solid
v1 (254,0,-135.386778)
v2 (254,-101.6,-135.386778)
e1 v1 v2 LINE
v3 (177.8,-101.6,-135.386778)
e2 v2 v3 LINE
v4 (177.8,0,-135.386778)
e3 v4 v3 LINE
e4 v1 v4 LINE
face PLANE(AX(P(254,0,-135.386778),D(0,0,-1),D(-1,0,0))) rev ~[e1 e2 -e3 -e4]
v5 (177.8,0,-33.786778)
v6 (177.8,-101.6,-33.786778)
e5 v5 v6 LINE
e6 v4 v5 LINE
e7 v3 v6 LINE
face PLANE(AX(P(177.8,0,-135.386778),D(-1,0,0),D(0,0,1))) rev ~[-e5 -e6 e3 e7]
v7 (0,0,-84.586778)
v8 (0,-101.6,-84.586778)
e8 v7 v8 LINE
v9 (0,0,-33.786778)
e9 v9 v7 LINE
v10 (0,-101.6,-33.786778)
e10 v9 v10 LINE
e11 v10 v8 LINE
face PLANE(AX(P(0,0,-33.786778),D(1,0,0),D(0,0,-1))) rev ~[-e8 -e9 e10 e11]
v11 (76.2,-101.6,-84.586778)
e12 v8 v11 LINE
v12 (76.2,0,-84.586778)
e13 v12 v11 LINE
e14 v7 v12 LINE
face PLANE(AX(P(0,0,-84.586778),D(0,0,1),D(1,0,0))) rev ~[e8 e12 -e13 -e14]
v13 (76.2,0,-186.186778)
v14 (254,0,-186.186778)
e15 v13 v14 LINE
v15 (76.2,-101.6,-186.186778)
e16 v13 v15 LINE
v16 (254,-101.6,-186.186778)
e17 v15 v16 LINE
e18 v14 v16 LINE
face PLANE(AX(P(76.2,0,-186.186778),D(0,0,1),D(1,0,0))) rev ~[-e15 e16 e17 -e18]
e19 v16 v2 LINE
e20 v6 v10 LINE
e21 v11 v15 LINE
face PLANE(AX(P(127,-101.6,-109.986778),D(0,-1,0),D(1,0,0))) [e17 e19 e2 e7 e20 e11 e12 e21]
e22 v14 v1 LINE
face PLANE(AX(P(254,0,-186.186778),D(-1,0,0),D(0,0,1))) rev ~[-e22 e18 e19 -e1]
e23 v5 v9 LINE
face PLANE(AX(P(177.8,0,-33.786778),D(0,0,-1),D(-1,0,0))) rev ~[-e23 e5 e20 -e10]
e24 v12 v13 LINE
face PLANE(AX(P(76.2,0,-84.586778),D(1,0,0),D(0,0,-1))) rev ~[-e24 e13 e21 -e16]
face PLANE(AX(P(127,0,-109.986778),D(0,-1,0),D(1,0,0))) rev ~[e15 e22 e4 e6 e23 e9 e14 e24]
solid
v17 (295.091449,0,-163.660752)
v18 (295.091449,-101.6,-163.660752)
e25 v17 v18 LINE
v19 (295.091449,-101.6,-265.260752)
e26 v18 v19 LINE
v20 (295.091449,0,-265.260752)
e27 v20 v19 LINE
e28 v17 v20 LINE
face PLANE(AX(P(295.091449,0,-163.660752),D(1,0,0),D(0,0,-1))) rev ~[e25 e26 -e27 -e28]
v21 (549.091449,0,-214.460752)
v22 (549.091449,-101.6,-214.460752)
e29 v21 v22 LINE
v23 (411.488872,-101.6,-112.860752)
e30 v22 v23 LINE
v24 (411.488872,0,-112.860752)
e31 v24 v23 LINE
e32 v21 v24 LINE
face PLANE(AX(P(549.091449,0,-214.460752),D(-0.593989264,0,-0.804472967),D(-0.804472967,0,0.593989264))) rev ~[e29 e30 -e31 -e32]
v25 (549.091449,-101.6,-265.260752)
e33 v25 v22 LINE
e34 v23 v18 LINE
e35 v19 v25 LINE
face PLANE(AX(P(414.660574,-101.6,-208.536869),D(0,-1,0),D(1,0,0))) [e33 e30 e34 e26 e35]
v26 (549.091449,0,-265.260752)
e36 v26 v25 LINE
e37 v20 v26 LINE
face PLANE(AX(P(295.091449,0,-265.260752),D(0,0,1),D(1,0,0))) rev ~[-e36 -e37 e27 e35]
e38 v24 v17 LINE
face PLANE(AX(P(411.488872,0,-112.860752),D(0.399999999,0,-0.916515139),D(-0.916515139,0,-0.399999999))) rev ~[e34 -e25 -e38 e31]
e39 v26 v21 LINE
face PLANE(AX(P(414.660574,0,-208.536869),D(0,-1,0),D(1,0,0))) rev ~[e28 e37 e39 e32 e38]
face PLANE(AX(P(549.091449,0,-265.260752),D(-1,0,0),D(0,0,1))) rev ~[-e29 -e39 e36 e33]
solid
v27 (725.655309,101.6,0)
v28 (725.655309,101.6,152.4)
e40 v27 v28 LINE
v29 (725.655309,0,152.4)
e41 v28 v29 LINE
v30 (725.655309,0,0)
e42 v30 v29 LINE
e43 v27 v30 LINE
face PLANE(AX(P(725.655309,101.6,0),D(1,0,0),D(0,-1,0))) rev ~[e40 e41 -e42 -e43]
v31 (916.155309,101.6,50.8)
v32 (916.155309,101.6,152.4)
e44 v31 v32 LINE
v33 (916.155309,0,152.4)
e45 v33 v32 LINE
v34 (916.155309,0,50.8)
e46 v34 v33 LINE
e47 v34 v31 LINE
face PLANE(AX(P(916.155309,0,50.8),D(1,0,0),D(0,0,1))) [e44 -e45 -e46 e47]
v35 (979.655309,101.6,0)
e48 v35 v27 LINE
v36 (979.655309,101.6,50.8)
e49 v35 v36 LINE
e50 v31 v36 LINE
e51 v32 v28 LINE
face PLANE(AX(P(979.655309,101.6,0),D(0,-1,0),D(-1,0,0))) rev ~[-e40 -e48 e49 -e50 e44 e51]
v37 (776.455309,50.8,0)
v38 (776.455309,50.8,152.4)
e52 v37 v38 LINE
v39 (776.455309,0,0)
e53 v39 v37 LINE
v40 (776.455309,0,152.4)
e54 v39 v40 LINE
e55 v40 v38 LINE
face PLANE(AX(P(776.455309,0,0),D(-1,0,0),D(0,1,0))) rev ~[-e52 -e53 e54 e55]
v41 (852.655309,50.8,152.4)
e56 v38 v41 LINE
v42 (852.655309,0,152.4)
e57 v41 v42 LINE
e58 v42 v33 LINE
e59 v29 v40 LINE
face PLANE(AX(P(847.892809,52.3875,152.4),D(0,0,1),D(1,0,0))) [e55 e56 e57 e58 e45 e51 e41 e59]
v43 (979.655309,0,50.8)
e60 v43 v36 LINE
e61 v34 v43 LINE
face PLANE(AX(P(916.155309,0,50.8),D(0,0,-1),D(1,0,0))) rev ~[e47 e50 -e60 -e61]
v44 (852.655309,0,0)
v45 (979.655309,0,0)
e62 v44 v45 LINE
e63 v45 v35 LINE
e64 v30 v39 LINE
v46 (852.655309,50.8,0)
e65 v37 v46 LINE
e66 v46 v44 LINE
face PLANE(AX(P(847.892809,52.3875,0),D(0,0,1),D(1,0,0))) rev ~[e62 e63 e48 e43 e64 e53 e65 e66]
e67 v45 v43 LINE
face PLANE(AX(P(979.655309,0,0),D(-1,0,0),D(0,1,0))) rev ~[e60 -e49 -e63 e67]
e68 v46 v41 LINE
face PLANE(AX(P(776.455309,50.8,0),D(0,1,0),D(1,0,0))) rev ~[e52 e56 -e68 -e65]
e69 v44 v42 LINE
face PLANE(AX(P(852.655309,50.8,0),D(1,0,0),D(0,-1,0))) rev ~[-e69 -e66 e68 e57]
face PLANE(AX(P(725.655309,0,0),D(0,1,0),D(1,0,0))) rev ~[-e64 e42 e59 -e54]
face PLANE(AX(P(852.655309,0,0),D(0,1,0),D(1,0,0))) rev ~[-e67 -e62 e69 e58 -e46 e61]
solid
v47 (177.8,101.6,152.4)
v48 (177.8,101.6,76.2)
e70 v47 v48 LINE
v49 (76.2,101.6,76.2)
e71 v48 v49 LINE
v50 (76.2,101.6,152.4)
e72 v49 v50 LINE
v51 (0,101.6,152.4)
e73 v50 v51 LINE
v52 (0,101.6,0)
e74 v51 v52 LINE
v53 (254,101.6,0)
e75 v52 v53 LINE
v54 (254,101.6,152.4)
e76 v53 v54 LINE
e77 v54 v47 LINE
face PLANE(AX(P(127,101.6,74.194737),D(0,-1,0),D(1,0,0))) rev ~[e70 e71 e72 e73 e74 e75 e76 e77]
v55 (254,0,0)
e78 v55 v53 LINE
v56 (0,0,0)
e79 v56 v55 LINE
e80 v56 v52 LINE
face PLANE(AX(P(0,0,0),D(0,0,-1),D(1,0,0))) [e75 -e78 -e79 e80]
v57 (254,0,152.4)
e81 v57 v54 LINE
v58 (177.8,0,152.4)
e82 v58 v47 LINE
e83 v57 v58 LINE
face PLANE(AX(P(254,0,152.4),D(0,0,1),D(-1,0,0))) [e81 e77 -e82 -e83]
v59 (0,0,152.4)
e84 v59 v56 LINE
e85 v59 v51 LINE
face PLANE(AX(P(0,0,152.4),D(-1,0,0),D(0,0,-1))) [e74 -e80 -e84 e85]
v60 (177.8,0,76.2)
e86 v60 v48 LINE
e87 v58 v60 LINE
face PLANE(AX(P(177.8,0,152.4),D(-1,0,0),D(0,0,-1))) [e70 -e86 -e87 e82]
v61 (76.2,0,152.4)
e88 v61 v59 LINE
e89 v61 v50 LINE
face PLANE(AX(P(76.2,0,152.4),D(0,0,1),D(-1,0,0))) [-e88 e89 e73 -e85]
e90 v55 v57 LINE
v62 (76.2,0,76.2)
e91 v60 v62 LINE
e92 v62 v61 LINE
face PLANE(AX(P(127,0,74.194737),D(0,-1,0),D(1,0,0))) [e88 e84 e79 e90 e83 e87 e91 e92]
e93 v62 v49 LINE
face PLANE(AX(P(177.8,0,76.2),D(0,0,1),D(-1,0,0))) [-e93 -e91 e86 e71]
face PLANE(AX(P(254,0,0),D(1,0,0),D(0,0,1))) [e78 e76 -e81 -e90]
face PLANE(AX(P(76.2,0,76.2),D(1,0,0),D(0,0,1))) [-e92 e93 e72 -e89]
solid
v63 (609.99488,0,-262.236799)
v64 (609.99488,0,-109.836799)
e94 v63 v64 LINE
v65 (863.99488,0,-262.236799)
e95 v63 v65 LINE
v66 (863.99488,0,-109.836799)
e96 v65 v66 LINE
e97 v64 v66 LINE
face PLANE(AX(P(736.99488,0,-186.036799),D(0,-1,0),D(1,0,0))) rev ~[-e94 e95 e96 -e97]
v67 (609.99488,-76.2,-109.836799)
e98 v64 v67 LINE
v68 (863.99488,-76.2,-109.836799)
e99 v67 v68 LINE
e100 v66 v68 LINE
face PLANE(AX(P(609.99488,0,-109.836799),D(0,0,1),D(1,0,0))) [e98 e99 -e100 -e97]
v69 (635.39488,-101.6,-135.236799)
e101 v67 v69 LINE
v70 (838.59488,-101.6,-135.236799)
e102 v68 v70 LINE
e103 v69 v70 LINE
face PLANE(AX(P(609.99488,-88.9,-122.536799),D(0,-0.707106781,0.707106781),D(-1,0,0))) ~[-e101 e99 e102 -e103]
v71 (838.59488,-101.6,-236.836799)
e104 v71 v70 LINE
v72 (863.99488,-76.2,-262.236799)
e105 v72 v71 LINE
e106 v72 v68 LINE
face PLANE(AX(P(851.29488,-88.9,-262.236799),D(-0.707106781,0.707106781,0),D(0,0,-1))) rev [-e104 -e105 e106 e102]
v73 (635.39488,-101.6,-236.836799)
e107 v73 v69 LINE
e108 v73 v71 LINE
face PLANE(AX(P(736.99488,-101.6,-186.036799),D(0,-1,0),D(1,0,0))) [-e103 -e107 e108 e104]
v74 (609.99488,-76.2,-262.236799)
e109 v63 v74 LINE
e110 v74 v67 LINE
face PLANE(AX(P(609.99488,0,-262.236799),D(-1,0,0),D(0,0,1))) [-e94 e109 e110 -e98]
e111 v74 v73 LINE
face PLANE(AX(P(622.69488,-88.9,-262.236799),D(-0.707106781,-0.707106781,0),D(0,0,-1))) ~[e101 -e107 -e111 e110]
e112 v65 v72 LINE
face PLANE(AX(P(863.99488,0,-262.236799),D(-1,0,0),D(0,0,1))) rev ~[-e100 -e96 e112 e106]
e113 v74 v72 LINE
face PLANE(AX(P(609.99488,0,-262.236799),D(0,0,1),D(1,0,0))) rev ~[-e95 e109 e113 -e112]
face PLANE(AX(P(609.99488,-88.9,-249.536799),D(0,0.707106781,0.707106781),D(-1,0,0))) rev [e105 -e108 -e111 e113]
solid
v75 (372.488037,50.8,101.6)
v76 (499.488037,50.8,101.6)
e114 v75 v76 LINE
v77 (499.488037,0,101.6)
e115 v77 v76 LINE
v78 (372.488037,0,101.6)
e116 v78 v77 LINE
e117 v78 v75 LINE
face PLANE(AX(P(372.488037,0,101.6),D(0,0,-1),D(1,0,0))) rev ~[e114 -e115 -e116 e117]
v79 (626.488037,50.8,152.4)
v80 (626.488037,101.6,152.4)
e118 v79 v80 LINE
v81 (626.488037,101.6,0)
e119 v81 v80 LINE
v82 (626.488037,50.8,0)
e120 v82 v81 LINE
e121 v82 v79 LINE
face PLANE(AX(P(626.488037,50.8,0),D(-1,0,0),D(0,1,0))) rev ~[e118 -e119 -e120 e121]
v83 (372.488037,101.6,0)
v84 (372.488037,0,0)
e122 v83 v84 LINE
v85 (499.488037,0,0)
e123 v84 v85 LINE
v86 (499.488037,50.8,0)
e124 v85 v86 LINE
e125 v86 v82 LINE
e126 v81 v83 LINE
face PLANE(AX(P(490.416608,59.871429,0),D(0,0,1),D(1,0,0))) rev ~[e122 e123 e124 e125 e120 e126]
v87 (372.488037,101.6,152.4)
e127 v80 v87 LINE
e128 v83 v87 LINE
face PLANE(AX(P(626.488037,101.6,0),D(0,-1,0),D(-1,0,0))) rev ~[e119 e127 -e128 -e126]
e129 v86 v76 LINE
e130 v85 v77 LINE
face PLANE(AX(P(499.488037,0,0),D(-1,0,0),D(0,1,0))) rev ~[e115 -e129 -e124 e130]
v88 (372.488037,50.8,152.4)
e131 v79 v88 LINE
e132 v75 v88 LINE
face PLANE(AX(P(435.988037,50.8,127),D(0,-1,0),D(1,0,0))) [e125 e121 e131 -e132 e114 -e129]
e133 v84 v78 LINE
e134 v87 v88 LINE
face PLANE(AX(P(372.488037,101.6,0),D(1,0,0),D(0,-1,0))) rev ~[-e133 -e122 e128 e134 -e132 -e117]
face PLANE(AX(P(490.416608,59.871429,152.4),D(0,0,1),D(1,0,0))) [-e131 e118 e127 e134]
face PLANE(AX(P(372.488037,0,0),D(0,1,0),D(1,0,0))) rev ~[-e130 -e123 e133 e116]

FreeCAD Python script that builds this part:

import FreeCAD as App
import Part
import Sketcher
from FreeCAD import Vector
Q = App.Units.Quantity


def edges_at(feature, points):
    """Names of the edges that pass closest to the given points."""
    edges = feature.Shape.Edges
    near = lambda p: min(range(len(edges)), key=lambda i: edges[i].distToShape(Part.Vertex(*p))[0])
    return sorted({f"Edge{near(p) + 1}" for p in points})


def add_polygon(sketch, points):
    """Adds a closed chain of lines whose ends are joined by coincident constraints."""
    first, n = sketch.GeometryCount, len(points)
    for a, b in zip(points, points[1:] + points[:1]):
        sketch.addGeometry(Part.LineSegment(App.Vector(*a, 0), App.Vector(*b, 0)), False)
    for i in range(n):
        sketch.addConstraint(Sketcher.Constraint("Coincident", first + i, 2, first + (i + 1) % n, 1))

doc = App.newDocument("Part")
body = doc.addObject("PartDesign::Body", "Body")

sketch1 = doc.addObject("Sketcher::SketchObject", "Sketch")
body.addObject(sketch1)
sketch1.AttachmentSupport = (doc.XZ_Plane, [""])
sketch1.MapMode = "FlatFace"
add_polygon(sketch1, [(0, 152.4), (0, 0), (254, 0), (254, 152.4), (177.8, 152.4), (177.8, 76.2), (76.2, 76.2), (76.2, 152.4)])
sketch1.addConstraint([
    Sketcher.Constraint("Vertical", 0),
    Sketcher.Constraint("Horizontal", 1),
    Sketcher.Constraint("Vertical", 2),
    Sketcher.Constraint("Horizontal", 3),
    Sketcher.Constraint("Vertical", 4),
    Sketcher.Constraint("Horizontal", 5),
    Sketcher.Constraint("Vertical", 6),
    Sketcher.Constraint("Horizontal", 7),
    Sketcher.Constraint("Coincident", 0, 2, -1, 1),
    Sketcher.Constraint("Horizontal", 3, 2, 6, 2),
    Sketcher.Constraint("Equal", 3, 7),
    Sketcher.Constraint("Equal", 7, 4),
    Sketcher.Constraint("DistanceX", 1, 1, 1, 2, Q("10 in")),
    Sketcher.Constraint("DistanceX", 3, 2, 3, 1, Q("3 in")),
    Sketcher.Constraint("DistanceY", 0, 2, 0, 1, Q("6 in")),
])
pad1 = doc.addObject("PartDesign::Pad", "Pad")
body.addObject(pad1)
pad1.Profile = sketch1
pad1.Length = Q("4 in")
pad1.Reversed = True
body2 = doc.addObject("PartDesign::Body", "Body001")

sketch2 = doc.addObject("Sketcher::SketchObject", "Sketch001")
body2.addObject(sketch2)
sketch2.AttachmentSupport = (doc.getObject("XY_Plane001"), [""])
sketch2.MapMode = "FlatFace"
add_polygon(sketch2, [(372.488037, 101.6), (372.488037, 0), (499.488037, 0), (499.488037, 50.8), (626.488037, 50.8), (626.488037, 101.6)])
sketch2.addConstraint([
    Sketcher.Constraint("Vertical", 0),
    Sketcher.Constraint("Horizontal", 1),
    Sketcher.Constraint("Vertical", 2),
    Sketcher.Constraint("Horizontal", 3),
    Sketcher.Constraint("Vertical", 4),
    Sketcher.Constraint("Horizontal", 5),
    Sketcher.Constraint("PointOnObject", 0, 2, -1),
    Sketcher.Constraint("Equal", 1, 3),
    Sketcher.Constraint("Equal", 2, 4),
    Sketcher.Constraint("DistanceX", 1, 1, 1, 2, Q("5 in")),
    Sketcher.Constraint("DistanceY", 0, 2, 0, 1, Q("4 in")),
    Sketcher.Constraint("DistanceX", -1, 1, 0, 2, 372.488037),
])
pad2 = doc.addObject("PartDesign::Pad", "Pad001")
body2.addObject(pad2)
pad2.Profile = sketch2
pad2.Length = Q("6 in")

sketch3 = doc.addObject("Sketcher::SketchObject", "Sketch002")
body2.addObject(sketch3)
sketch3.AttachmentSupport = (doc.getObject("XZ_Plane001"), [""])
sketch3.MapMode = "FlatFace"
add_polygon(sketch3, [(372.488037, 152.4), (372.488037, 101.6), (499.488037, 101.6), (499.488037, 152.4)])
sketch3.addConstraint([
    Sketcher.Constraint("Vertical", 0),
    Sketcher.Constraint("Horizontal", 1),
    Sketcher.Constraint("Vertical", 2),
    Sketcher.Constraint("Horizontal", 3),
    Sketcher.Constraint("DistanceX", 1, 1, 1, 2, Q("5 in")),
    Sketcher.Constraint("DistanceY", 0, 2, 0, 1, Q("2 in")),
    Sketcher.Constraint("DistanceY", -1, 1, 0, 2, Q("4 in")),
    Sketcher.Constraint("DistanceX", -1, 1, 0, 2, 372.488037),
])
pocket1 = doc.addObject("PartDesign::Pocket", "Pocket")
body2.addObject(pocket1)
pocket1.Profile = sketch3
pocket1.Length = Q("2 in")
body3 = doc.addObject("PartDesign::Body", "Body002")

sketch4 = doc.addObject("Sketcher::SketchObject", "Sketch003")
body3.addObject(sketch4)
sketch4.AttachmentSupport = (doc.getObject("XY_Plane002"), [""])
sketch4.MapMode = "FlatFace"
add_polygon(sketch4, [(979.655309, 101.6), (725.655309, 101.6), (725.655309, 0), (776.455309, 0), (776.455309, 50.8), (852.655309, 50.8), (852.655309, 0), (979.655309, 0)])
sketch4.addConstraint([
    Sketcher.Constraint("Horizontal", 0),
    Sketcher.Constraint("Vertical", 1),
    Sketcher.Constraint("Horizontal", 2),
    Sketcher.Constraint("Vertical", 3),
    Sketcher.Constraint("Horizontal", 4),
    Sketcher.Constraint("Vertical", 5),
    Sketcher.Constraint("Horizontal", 6),
    Sketcher.Constraint("Vertical", 7),
    Sketcher.Constraint("PointOnObject", 1, 2, -1),
    Sketcher.Constraint("PointOnObject", 5, 2, -1),
    Sketcher.Constraint("Equal", 2, 3),
    Sketcher.Constraint("DistanceX", 0, 2, 0, 1, Q("10 in")),
    Sketcher.Constraint("DistanceX", 2, 1, 2, 2, Q("2 in")),
    Sketcher.Constraint("DistanceX", 4, 1, 4, 2, Q("3 in")),
    Sketcher.Constraint("DistanceY", 1, 2, 1, 1, Q("4 in")),
    Sketcher.Constraint("DistanceX", -1, 1, 0, 2, 725.655309),
])
pad3 = doc.addObject("PartDesign::Pad", "Pad002")
body3.addObject(pad3)
pad3.Profile = sketch4
pad3.Length = Q("6 in")

sketch5 = doc.addObject("Sketcher::SketchObject", "Sketch004")
body3.addObject(sketch5)
sketch5.AttachmentSupport = (doc.getObject("XZ_Plane002"), [""])
sketch5.MapMode = "FlatFace"
add_polygon(sketch5, [(916.155309, 152.4), (916.155309, 50.8), (979.655309, 50.8), (979.655309, 152.4)])
sketch5.addConstraint([
    Sketcher.Constraint("Vertical", 0),
    Sketcher.Constraint("Horizontal", 1),
    Sketcher.Constraint("Vertical", 2),
    Sketcher.Constraint("Horizontal", 3),
    Sketcher.Constraint("DistanceY", 0, 2, 0, 1, Q("4 in")),
    Sketcher.Constraint("DistanceX", 1, 1, 1, 2, Q("2.5 in")),
    Sketcher.Constraint("DistanceY", -1, 1, 0, 2, Q("2 in")),
    Sketcher.Constraint("DistanceX", -1, 1, 0, 2, 916.155309),
])
pocket2 = doc.addObject("PartDesign::Pocket", "Pocket001")
body3.addObject(pocket2)
pocket2.Profile = sketch5
pocket2.Length = Q("4 in")
body4 = doc.addObject("PartDesign::Body", "Body003")

sketch6 = doc.addObject("Sketcher::SketchObject", "Sketch005")
body4.addObject(sketch6)
sketch6.AttachmentSupport = (doc.getObject("XZ_Plane003"), [""])
sketch6.MapMode = "FlatFace"
add_polygon(sketch6, [(177.8, -33.786778), (0, -33.786778), (0, -84.586778), (76.2, -84.586778), (76.2, -186.186778), (254, -186.186778), (254, -135.386778), (177.8, -135.386778)])
sketch6.addConstraint([
    Sketcher.Constraint("Horizontal", 0),
    Sketcher.Constraint("Vertical", 1),
    Sketcher.Constraint("Horizontal", 2),
    Sketcher.Constraint("Vertical", 3),
    Sketcher.Constraint("Horizontal", 4),
    Sketcher.Constraint("Vertical", 5),
    Sketcher.Constraint("Horizontal", 6),
    Sketcher.Constraint("Vertical", 7),
    Sketcher.Constraint("PointOnObject", 0, 2, -2),
    Sketcher.Constraint("Equal", 0, 4),
    Sketcher.Constraint("Equal", 1, 5),
    Sketcher.Constraint("DistanceX", 0, 2, 0, 1, Q("7 in")),
    Sketcher.Constraint("DistanceX", 2, 1, 2, 2, Q("3 in")),
    Sketcher.Constraint("DistanceY", 1, 2, 1, 1, Q("2 in")),
    Sketcher.Constraint("DistanceY", 3, 2, 3, 1, Q("4 in")),
    Sketcher.Constraint("DistanceY", 3, 2, -1, 1, 186.186778),
])
pad4 = doc.addObject("PartDesign::Pad", "Pad003")
body4.addObject(pad4)
pad4.Profile = sketch6
pad4.Length = Q("4 in")
body5 = doc.addObject("PartDesign::Body", "Body004")

sketch7 = doc.addObject("Sketcher::SketchObject", "Sketch006")
body5.addObject(sketch7)
sketch7.AttachmentSupport = (doc.getObject("XZ_Plane004"), [""])
sketch7.MapMode = "FlatFace"
add_polygon(sketch7, [(411.488872, -112.860752), (295.091449, -163.660752), (295.091449, -265.260752), (549.091449, -265.260752), (549.091449, -214.460752)])
sketch7.addConstraint([
    Sketcher.Constraint("Vertical", 1),
    Sketcher.Constraint("Horizontal", 2),
    Sketcher.Constraint("Vertical", 3),
    Sketcher.Constraint("DistanceX", 2, 1, 2, 2, Q("10 in")),
    Sketcher.Constraint("DistanceY", 1, 2, 1, 1, Q("4 in")),
    Sketcher.Constraint("DistanceY", 3, 1, 3, 2, Q("2 in")),
    Sketcher.Constraint("Distance", 0, Q("5 in")),
    Sketcher.Constraint("DistanceY", 0, 2, 4, 2, Q("2 in")),
    Sketcher.Constraint("DistanceX", -1, 1, 0, 2, 295.091449),
    Sketcher.Constraint("DistanceY", 0, 2, -1, 1, 163.660752),
])
pad5 = doc.addObject("PartDesign::Pad", "Pad004")
body5.addObject(pad5)
pad5.Profile = sketch7
pad5.Length = Q("4 in")
body6 = doc.addObject("PartDesign::Body", "Body005")

sketch8 = doc.addObject("Sketcher::SketchObject", "Sketch007")
body6.addObject(sketch8)
sketch8.AttachmentSupport = (doc.getObject("XZ_Plane005"), [""])
sketch8.MapMode = "FlatFace"
add_polygon(sketch8, [(609.99488, -109.836799), (609.99488, -262.236799), (863.99488, -262.236799), (863.99488, -109.836799)])
sketch8.addConstraint([
    Sketcher.Constraint("Vertical", 0),
    Sketcher.Constraint("Horizontal", 1),
    Sketcher.Constraint("Vertical", 2),
    Sketcher.Constraint("Horizontal", 3),
    Sketcher.Constraint("DistanceX", 1, 1, 1, 2, Q("10 in")),
    Sketcher.Constraint("DistanceY", 0, 2, 0, 1, Q("6 in")),
    Sketcher.Constraint("DistanceY", 0, 2, -1, 1, 262.236799),
    Sketcher.Constraint("DistanceX", -1, 1, 0, 2, 609.99488),
])
pad6 = doc.addObject("PartDesign::Pad", "Pad005")
body6.addObject(pad6)
pad6.Profile = sketch8
pad6.Length = Q("4 in")
doc.recompute()

chamfer = doc.addObject("PartDesign::Chamfer", "Chamfer")
body6.addObject(chamfer)
chamfer.Base = (pad6, edges_at(pad6, [
    (736.995, -101.6, -109.837),
    (609.995, -101.6, -186.037),
    (736.995, -101.6, -262.237),
    (863.995, -101.6, -186.037),
]))
chamfer.Size = Q("1 in")

doc.recompute()
